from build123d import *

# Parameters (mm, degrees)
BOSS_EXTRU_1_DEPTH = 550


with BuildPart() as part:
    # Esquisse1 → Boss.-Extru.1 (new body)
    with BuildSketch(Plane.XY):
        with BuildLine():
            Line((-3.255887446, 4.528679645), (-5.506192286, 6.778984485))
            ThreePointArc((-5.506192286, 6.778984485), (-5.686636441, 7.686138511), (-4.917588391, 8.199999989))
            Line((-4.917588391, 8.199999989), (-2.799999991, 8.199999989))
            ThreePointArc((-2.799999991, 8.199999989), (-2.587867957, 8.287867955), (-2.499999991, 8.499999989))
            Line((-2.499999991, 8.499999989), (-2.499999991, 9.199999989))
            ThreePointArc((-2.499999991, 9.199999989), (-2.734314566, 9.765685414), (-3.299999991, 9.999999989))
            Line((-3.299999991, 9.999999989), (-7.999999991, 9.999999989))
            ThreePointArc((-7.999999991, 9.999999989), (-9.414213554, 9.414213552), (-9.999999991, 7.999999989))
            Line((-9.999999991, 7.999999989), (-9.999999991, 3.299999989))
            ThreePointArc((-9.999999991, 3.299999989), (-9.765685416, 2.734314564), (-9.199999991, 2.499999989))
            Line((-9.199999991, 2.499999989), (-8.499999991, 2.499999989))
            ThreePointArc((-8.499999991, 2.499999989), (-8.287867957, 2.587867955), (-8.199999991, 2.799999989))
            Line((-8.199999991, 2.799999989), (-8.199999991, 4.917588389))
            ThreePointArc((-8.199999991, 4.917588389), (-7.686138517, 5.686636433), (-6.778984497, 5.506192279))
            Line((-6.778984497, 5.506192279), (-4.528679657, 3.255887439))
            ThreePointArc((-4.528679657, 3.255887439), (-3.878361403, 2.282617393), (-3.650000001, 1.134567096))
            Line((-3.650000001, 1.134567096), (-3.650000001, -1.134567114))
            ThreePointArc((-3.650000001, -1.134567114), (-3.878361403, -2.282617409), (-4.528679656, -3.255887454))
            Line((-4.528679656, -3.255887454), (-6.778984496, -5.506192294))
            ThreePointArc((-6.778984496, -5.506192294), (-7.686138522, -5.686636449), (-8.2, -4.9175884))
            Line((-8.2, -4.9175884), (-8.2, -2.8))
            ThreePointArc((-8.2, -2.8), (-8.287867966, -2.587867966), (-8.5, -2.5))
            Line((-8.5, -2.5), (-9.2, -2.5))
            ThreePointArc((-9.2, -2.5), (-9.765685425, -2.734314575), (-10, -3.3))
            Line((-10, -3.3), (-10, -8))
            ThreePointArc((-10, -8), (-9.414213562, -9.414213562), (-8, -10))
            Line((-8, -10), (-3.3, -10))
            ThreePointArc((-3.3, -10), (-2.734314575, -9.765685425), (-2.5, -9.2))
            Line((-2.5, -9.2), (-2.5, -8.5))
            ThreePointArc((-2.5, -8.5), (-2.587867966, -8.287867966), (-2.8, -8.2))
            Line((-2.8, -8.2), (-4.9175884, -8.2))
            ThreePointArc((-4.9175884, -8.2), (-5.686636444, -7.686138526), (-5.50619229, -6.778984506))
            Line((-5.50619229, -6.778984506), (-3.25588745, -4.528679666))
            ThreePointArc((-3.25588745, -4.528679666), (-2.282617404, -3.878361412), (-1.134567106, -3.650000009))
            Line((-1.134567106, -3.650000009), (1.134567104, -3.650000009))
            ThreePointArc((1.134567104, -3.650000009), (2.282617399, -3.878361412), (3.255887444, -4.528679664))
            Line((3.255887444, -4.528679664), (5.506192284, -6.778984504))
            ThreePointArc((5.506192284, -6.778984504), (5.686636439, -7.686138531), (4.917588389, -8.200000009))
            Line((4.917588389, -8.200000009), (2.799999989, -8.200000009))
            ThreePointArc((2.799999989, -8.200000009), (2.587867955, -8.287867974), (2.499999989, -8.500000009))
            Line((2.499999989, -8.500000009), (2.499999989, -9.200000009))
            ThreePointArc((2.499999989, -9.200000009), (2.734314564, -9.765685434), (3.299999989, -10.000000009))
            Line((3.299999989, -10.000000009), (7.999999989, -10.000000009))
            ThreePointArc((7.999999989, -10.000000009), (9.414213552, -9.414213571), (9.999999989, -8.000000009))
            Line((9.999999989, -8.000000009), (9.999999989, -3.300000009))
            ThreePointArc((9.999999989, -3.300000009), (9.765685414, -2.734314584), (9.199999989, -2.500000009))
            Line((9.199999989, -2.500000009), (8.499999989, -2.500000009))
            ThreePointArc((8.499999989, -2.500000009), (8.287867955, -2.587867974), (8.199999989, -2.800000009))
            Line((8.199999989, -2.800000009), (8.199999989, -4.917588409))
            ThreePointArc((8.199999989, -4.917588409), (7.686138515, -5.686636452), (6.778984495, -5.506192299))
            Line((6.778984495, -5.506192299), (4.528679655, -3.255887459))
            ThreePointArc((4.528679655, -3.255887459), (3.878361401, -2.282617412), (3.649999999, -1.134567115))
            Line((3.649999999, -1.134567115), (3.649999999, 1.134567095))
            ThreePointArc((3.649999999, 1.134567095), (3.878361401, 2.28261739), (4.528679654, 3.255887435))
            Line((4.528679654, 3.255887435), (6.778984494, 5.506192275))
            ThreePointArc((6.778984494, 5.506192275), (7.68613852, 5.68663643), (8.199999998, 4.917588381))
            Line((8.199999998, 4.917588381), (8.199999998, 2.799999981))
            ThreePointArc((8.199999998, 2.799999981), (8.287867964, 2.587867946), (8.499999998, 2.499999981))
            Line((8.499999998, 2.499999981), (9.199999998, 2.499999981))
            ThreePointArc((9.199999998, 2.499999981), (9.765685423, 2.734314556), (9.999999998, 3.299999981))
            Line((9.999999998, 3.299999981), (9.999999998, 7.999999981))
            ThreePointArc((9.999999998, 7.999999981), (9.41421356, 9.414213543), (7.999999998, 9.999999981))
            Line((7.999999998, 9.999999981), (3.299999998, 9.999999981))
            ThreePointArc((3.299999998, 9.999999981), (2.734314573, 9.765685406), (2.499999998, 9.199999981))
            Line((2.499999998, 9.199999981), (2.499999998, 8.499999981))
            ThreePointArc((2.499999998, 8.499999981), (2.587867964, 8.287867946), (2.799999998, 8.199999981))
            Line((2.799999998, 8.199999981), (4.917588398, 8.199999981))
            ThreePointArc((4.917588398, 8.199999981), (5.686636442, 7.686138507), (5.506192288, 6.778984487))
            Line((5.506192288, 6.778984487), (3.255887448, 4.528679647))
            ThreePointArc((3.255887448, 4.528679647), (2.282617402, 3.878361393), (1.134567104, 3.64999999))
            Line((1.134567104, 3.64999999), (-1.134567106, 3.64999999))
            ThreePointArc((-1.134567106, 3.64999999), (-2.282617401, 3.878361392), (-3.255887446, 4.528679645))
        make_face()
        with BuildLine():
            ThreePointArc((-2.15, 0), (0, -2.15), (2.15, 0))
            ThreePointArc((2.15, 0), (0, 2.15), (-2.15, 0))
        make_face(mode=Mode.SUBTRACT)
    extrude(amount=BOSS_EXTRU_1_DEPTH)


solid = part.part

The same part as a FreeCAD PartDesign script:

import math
import FreeCAD as App
import Part
import Sketcher

V = App.Vector

doc = App.newDocument("Part")
body = doc.addObject("PartDesign::Body", "Body")

# Sketch on XY plane
sketch1 = body.newObject("Sketcher::SketchObject", "Sketch")
sketch1.AttachmentSupport = (doc.getObject("XY_Plane"), [""])
sketch1.MapMode = "FlatFace"
sketch1.addGeometry(Part.LineSegment(V(-3.26, 4.53, 0), V(-5.51, 6.78, 0)), False)
sketch1.addGeometry(Part.ArcOfCircle(Part.Circle(V(-4.92, 7.37, 0), V(0, 0, 1), 0.83), math.radians(90), math.radians(225)), False)
sketch1.addGeometry(Part.LineSegment(V(-4.92, 8.2, 0), V(-2.8, 8.2, 0)), False)
sketch1.addGeometry(Part.ArcOfCircle(Part.Circle(V(-2.8, 8.5, 0), V(0, 0, 1), 0.3), math.radians(-90), math.radians(0)), False)
sketch1.addGeometry(Part.LineSegment(V(-2.5, 8.5, 0), V(-2.5, 9.2, 0)), False)
sketch1.addGeometry(Part.ArcOfCircle(Part.Circle(V(-3.3, 9.2, 0), V(0, 0, 1), 0.8), math.radians(0), math.radians(90)), False)
sketch1.addGeometry(Part.LineSegment(V(-3.3, 10, 0), V(-8, 10, 0)), False)
sketch1.addGeometry(Part.ArcOfCircle(Part.Circle(V(-8, 8, 0), V(0, 0, 1), 2), math.radians(90), math.radians(180)), False)
sketch1.addGeometry(Part.LineSegment(V(-10, 8, 0), V(-10, 3.3, 0)), False)
sketch1.addGeometry(Part.ArcOfCircle(Part.Circle(V(-9.2, 3.3, 0), V(0, 0, 1), 0.8), math.radians(180), math.radians(270)), False)
sketch1.addGeometry(Part.LineSegment(V(-9.2, 2.5, 0), V(-8.5, 2.5, 0)), False)
sketch1.addGeometry(Part.ArcOfCircle(Part.Circle(V(-8.5, 2.8, 0), V(0, 0, 1), 0.3), math.radians(-90), math.radians(0)), False)
sketch1.addGeometry(Part.LineSegment(V(-8.2, 2.8, 0), V(-8.2, 4.92, 0)), False)
sketch1.addGeometry(Part.ArcOfCircle(Part.Circle(V(-7.37, 4.92, 0), V(0, 0, 1), 0.83), math.radians(45), math.radians(180)), False)
sketch1.addGeometry(Part.LineSegment(V(-6.78, 5.51, 0), V(-4.53, 3.26, 0)), False)
sketch1.addGeometry(Part.ArcOfCircle(Part.Circle(V(-6.65, 1.13, 0), V(0, 0, 1), 3), math.radians(0), math.radians(45)), False)
sketch1.addGeometry(Part.LineSegment(V(-3.65, 1.13, 0), V(-3.65, -1.13, 0)), False)
sketch1.addGeometry(Part.ArcOfCircle(Part.Circle(V(-6.65, -1.13, 0), V(0, 0, 1), 3), math.radians(-45), math.radians(0)), False)
sketch1.addGeometry(Part.LineSegment(V(-4.53, -3.26, 0), V(-6.78, -5.51, 0)), False)
sketch1.addGeometry(Part.ArcOfCircle(Part.Circle(V(-7.37, -4.92, 0), V(0, 0, 1), 0.83), math.radians(180), math.radians(315)), False)
sketch1.addGeometry(Part.LineSegment(V(-8.2, -4.92, 0), V(-8.2, -2.8, 0)), False)
sketch1.addGeometry(Part.ArcOfCircle(Part.Circle(V(-8.5, -2.8, 0), V(0, 0, 1), 0.3), math.radians(0), math.radians(90)), False)
sketch1.addGeometry(Part.LineSegment(V(-8.5, -2.5, 0), V(-9.2, -2.5, 0)), False)
sketch1.addGeometry(Part.ArcOfCircle(Part.Circle(V(-9.2, -3.3, 0), V(0, 0, 1), 0.8), math.radians(90), math.radians(180)), False)
sketch1.addGeometry(Part.LineSegment(V(-10, -3.3, 0), V(-10, -8, 0)), False)
sketch1.addGeometry(Part.ArcOfCircle(Part.Circle(V(-8, -8, 0), V(0, 0, 1), 2), math.radians(-180), math.radians(-90)), False)
sketch1.addGeometry(Part.LineSegment(V(-8, -10, 0), V(-3.3, -10, 0)), False)
sketch1.addGeometry(Part.ArcOfCircle(Part.Circle(V(-3.3, -9.2, 0), V(0, 0, 1), 0.8), math.radians(-90), math.radians(0)), False)
sketch1.addGeometry(Part.LineSegment(V(-2.5, -9.2, 0), V(-2.5, -8.5, 0)), False)
sketch1.addGeometry(Part.ArcOfCircle(Part.Circle(V(-2.8, -8.5, 0), V(0, 0, 1), 0.3), math.radians(0), math.radians(90)), False)
sketch1.addGeometry(Part.LineSegment(V(-2.8, -8.2, 0), V(-4.92, -8.2, 0)), False)
sketch1.addGeometry(Part.ArcOfCircle(Part.Circle(V(-4.92, -7.37, 0), V(0, 0, 1), 0.83), math.radians(135), math.radians(270)), False)
sketch1.addGeometry(Part.LineSegment(V(-5.51, -6.78, 0), V(-3.26, -4.53, 0)), False)
sketch1.addGeometry(Part.ArcOfCircle(Part.Circle(V(-1.13, -6.65, 0), V(0, 0, 1), 3), math.radians(90), math.radians(135)), False)
sketch1.addGeometry(Part.LineSegment(V(-1.13, -3.65, 0), V(1.13, -3.65, 0)), False)
sketch1.addGeometry(Part.ArcOfCircle(Part.Circle(V(1.13, -6.65, 0), V(0, 0, 1), 3), math.radians(45), math.radians(90)), False)
sketch1.addGeometry(Part.LineSegment(V(3.26, -4.53, 0), V(5.51, -6.78, 0)), False)
sketch1.addGeometry(Part.ArcOfCircle(Part.Circle(V(4.92, -7.37, 0), V(0, 0, 1), 0.83), math.radians(-90), math.radians(45)), False)
sketch1.addGeometry(Part.LineSegment(V(4.92, -8.2, 0), V(2.8, -8.2, 0)), False)
sketch1.addGeometry(Part.ArcOfCircle(Part.Circle(V(2.8, -8.5, 0), V(0, 0, 1), 0.3), math.radians(90), math.radians(180)), False)
sketch1.addGeometry(Part.LineSegment(V(2.5, -8.5, 0), V(2.5, -9.2, 0)), False)
sketch1.addGeometry(Part.ArcOfCircle(Part.Circle(V(3.3, -9.2, 0), V(0, 0, 1), 0.8), math.radians(180), math.radians(270)), False)
sketch1.addGeometry(Part.LineSegment(V(3.3, -10, 0), V(8, -10, 0)), False)
sketch1.addGeometry(Part.ArcOfCircle(Part.Circle(V(8, -8, 0), V(0, 0, 1), 2), math.radians(-90), math.radians(0)), False)
sketch1.addGeometry(Part.LineSegment(V(10, -8, 0), V(10, -3.3, 0)), False)
sketch1.addGeometry(Part.ArcOfCircle(Part.Circle(V(9.2, -3.3, 0), V(0, 0, 1), 0.8), math.radians(0), math.radians(90)), False)
sketch1.addGeometry(Part.LineSegment(V(9.2, -2.5, 0), V(8.5, -2.5, 0)), False)
sketch1.addGeometry(Part.ArcOfCircle(Part.Circle(V(8.5, -2.8, 0), V(0, 0, 1), 0.3), math.radians(90), math.radians(180)), False)
sketch1.addGeometry(Part.LineSegment(V(8.2, -2.8, 0), V(8.2, -4.92, 0)), False)
sketch1.addGeometry(Part.ArcOfCircle(Part.Circle(V(7.37, -4.92, 0), V(0, 0, 1), 0.83), math.radians(-135), math.radians(0)), False)
sketch1.addGeometry(Part.LineSegment(V(6.78, -5.51, 0), V(4.53, -3.26, 0)), False)
sketch1.addGeometry(Part.ArcOfCircle(Part.Circle(V(6.65, -1.13, 0), V(0, 0, 1), 3), math.radians(180), math.radians(225)), False)
sketch1.addGeometry(Part.LineSegment(V(3.65, -1.13, 0), V(3.65, 1.13, 0)), False)
sketch1.addGeometry(Part.ArcOfCircle(Part.Circle(V(6.65, 1.13, 0), V(0, 0, 1), 3), math.radians(135), math.radians(180)), False)
sketch1.addGeometry(Part.LineSegment(V(4.53, 3.26, 0), V(6.78, 5.51, 0)), False)
sketch1.addGeometry(Part.ArcOfCircle(Part.Circle(V(7.37, 4.92, 0), V(0, 0, 1), 0.83), math.radians(0), math.radians(135)), False)
sketch1.addGeometry(Part.LineSegment(V(8.2, 4.92, 0), V(8.2, 2.8, 0)), False)
sketch1.addGeometry(Part.ArcOfCircle(Part.Circle(V(8.5, 2.8, 0), V(0, 0, 1), 0.3), math.radians(180), math.radians(270)), False)
sketch1.addGeometry(Part.LineSegment(V(8.5, 2.5, 0), V(9.2, 2.5, 0)), False)
sketch1.addGeometry(Part.ArcOfCircle(Part.Circle(V(9.2, 3.3, 0), V(0, 0, 1), 0.8), math.radians(-90), math.radians(0)), False)
sketch1.addGeometry(Part.LineSegment(V(10, 3.3, 0), V(10, 8, 0)), False)
sketch1.addGeometry(Part.ArcOfCircle(Part.Circle(V(8, 8, 0), V(0, 0, 1), 2), math.radians(0), math.radians(90)), False)
sketch1.addGeometry(Part.LineSegment(V(8, 10, 0), V(3.3, 10, 0)), False)
sketch1.addGeometry(Part.ArcOfCircle(Part.Circle(V(3.3, 9.2, 0), V(0, 0, 1), 0.8), math.radians(90), math.radians(180)), False)
sketch1.addGeometry(Part.LineSegment(V(2.5, 9.2, 0), V(2.5, 8.5, 0)), False)
sketch1.addGeometry(Part.ArcOfCircle(Part.Circle(V(2.8, 8.5, 0), V(0, 0, 1), 0.3), math.radians(180), math.radians(270)), False)
sketch1.addGeometry(Part.LineSegment(V(2.8, 8.2, 0), V(4.92, 8.2, 0)), False)
sketch1.addGeometry(Part.ArcOfCircle(Part.Circle(V(4.92, 7.37, 0), V(0, 0, 1), 0.83), math.radians(-45), math.radians(90)), False)
sketch1.addGeometry(Part.LineSegment(V(5.51, 6.78, 0), V(3.26, 4.53, 0)), False)
sketch1.addGeometry(Part.ArcOfCircle(Part.Circle(V(1.13, 6.65, 0), V(0, 0, 1), 3), math.radians(-90), math.radians(-45)), False)
sketch1.addGeometry(Part.LineSegment(V(1.13, 3.65, 0), V(-1.13, 3.65, 0)), False)
sketch1.addGeometry(Part.ArcOfCircle(Part.Circle(V(-1.13, 6.65, 0), V(0, 0, 1), 3), math.radians(-135), math.radians(-90)), False)
sketch1.addGeometry(Part.Circle(V(0, 0, 0), V(0, 0, 1), 2.15), False)
sketch1.addConstraint(Sketcher.Constraint("Tangent", 0, 2, 1, 2))
sketch1.addConstraint(Sketcher.Constraint("Tangent", 1, 1, 2, 1))
sketch1.addConstraint(Sketcher.Constraint("Tangent", 2, 2, 3, 1))
sketch1.addConstraint(Sketcher.Constraint("Tangent", 3, 2, 4, 1))
sketch1.addConstraint(Sketcher.Constraint("Tangent", 4, 2, 5, 1))
sketch1.addConstraint(Sketcher.Constraint("Tangent", 5, 2, 6, 1))
sketch1.addConstraint(Sketcher.Constraint("Tangent", 6, 2, 7, 1))
sketch1.addConstraint(Sketcher.Constraint("Tangent", 7, 2, 8, 1))
sketch1.addConstraint(Sketcher.Constraint("Tangent", 8, 2, 9, 1))
sketch1.addConstraint(Sketcher.Constraint("Tangent", 9, 2, 10, 1))
sketch1.addConstraint(Sketcher.Constraint("Tangent", 10, 2, 11, 1))
sketch1.addConstraint(Sketcher.Constraint("Tangent", 11, 2, 12, 1))
sketch1.addConstraint(Sketcher.Constraint("Tangent", 12, 2, 13, 2))
sketch1.addConstraint(Sketcher.Constraint("Tangent", 13, 1, 14, 1))
sketch1.addConstraint(Sketcher.Constraint("Tangent", 14, 2, 15, 2))
sketch1.addConstraint(Sketcher.Constraint("Tangent", 15, 1, 16, 1))
sketch1.addConstraint(Sketcher.Constraint("Tangent", 16, 2, 17, 2))
sketch1.addConstraint(Sketcher.Constraint("Tangent", 17, 1, 18, 1))
sketch1.addConstraint(Sketcher.Constraint("Tangent", 18, 2, 19, 2))
sketch1.addConstraint(Sketcher.Constraint("Tangent", 19, 1, 20, 1))
sketch1.addConstraint(Sketcher.Constraint("Tangent", 20, 2, 21, 1))
sketch1.addConstraint(Sketcher.Constraint("Tangent", 21, 2, 22, 1))
sketch1.addConstraint(Sketcher.Constraint("Tangent", 22, 2, 23, 1))
sketch1.addConstraint(Sketcher.Constraint("Tangent", 23, 2, 24, 1))
sketch1.addConstraint(Sketcher.Constraint("Tangent", 24, 2, 25, 1))
sketch1.addConstraint(Sketcher.Constraint("Tangent", 25, 2, 26, 1))
sketch1.addConstraint(Sketcher.Constraint("Tangent", 26, 2, 27, 1))
sketch1.addConstraint(Sketcher.Constraint("Tangent", 27, 2, 28, 1))
sketch1.addConstraint(Sketcher.Constraint("Tangent", 28, 2, 29, 1))
sketch1.addConstraint(Sketcher.Constraint("Tangent", 29, 2, 30, 1))
sketch1.addConstraint(Sketcher.Constraint("Tangent", 30, 2, 31, 2))
sketch1.addConstraint(Sketcher.Constraint("Tangent", 31, 1, 32, 1))
sketch1.addConstraint(Sketcher.Constraint("Tangent", 32, 2, 33, 2))
sketch1.addConstraint(Sketcher.Constraint("Tangent", 33, 1, 34, 1))
sketch1.addConstraint(Sketcher.Constraint("Tangent", 34, 2, 35, 2))
sketch1.addConstraint(Sketcher.Constraint("Tangent", 35, 1, 36, 1))
sketch1.addConstraint(Sketcher.Constraint("Tangent", 36, 2, 37, 2))
sketch1.addConstraint(Sketcher.Constraint("Tangent", 37, 1, 38, 1))
sketch1.addConstraint(Sketcher.Constraint("Tangent", 38, 2, 39, 1))
sketch1.addConstraint(Sketcher.Constraint("Tangent", 39, 2, 40, 1))
sketch1.addConstraint(Sketcher.Constraint("Tangent", 40, 2, 41, 1))
sketch1.addConstraint(Sketcher.Constraint("Tangent", 41, 2, 42, 1))
sketch1.addConstraint(Sketcher.Constraint("Tangent", 42, 2, 43, 1))
sketch1.addConstraint(Sketcher.Constraint("Tangent", 43, 2, 44, 1))
sketch1.addConstraint(Sketcher.Constraint("Tangent", 44, 2, 45, 1))
sketch1.addConstraint(Sketcher.Constraint("Tangent", 45, 2, 46, 1))
sketch1.addConstraint(Sketcher.Constraint("Tangent", 46, 2, 47, 1))
sketch1.addConstraint(Sketcher.Constraint("Tangent", 47, 2, 48, 1))
sketch1.addConstraint(Sketcher.Constraint("Tangent", 48, 2, 49, 2))
sketch1.addConstraint(Sketcher.Constraint("Tangent", 49, 1, 50, 1))
sketch1.addConstraint(Sketcher.Constraint("Tangent", 50, 2, 51, 2))
sketch1.addConstraint(Sketcher.Constraint("Tangent", 51, 1, 52, 1))
sketch1.addConstraint(Sketcher.Constraint("Tangent", 52, 2, 53, 2))
sketch1.addConstraint(Sketcher.Constraint("Tangent", 53, 1, 54, 1))
sketch1.addConstraint(Sketcher.Constraint("Tangent", 54, 2, 55, 2))
sketch1.addConstraint(Sketcher.Constraint("Tangent", 55, 1, 56, 1))
sketch1.addConstraint(Sketcher.Constraint("Tangent", 56, 2, 57, 1))
sketch1.addConstraint(Sketcher.Constraint("Tangent", 57, 2, 58, 1))
sketch1.addConstraint(Sketcher.Constraint("Tangent", 58, 2, 59, 1))
sketch1.addConstraint(Sketcher.Constraint("Tangent", 59, 2, 60, 1))
sketch1.addConstraint(Sketcher.Constraint("Tangent", 60, 2, 61, 1))
sketch1.addConstraint(Sketcher.Constraint("Tangent", 61, 2, 62, 1))
sketch1.addConstraint(Sketcher.Constraint("Tangent", 62, 2, 63, 1))
sketch1.addConstraint(Sketcher.Constraint("Tangent", 63, 2, 64, 1))
sketch1.addConstraint(Sketcher.Constraint("Tangent", 64, 2, 65, 1))
sketch1.addConstraint(Sketcher.Constraint("Tangent", 65, 2, 66, 1))
sketch1.addConstraint(Sketcher.Constraint("Tangent", 66, 2, 67, 2))
sketch1.addConstraint(Sketcher.Constraint("Tangent", 67, 1, 68, 1))
sketch1.addConstraint(Sketcher.Constraint("Tangent", 68, 2, 69, 2))
sketch1.addConstraint(Sketcher.Constraint("Tangent", 69, 1, 70, 1))
sketch1.addConstraint(Sketcher.Constraint("Tangent", 70, 2, 71, 2))
sketch1.addConstraint(Sketcher.Constraint("Tangent", 71, 1, 0, 1))
sketch1.addConstraint(Sketcher.Constraint("Horizontal", 2))
sketch1.addConstraint(Sketcher.Constraint("Vertical", 4))
sketch1.addConstraint(Sketcher.Constraint("Horizontal", 6))
sketch1.addConstraint(Sketcher.Constraint("Vertical", 8))
sketch1.addConstraint(Sketcher.Constraint("Horizontal", 10))
sketch1.addConstraint(Sketcher.Constraint("Vertical", 12))
sketch1.addConstraint(Sketcher.Constraint("Vertical", 16))
sketch1.addConstraint(Sketcher.Constraint("Vertical", 20))
sketch1.addConstraint(Sketcher.Constraint("Horizontal", 22))
sketch1.addConstraint(Sketcher.Constraint("Vertical", 24))
sketch1.addConstraint(Sketcher.Constraint("Horizontal", 26))
sketch1.addConstraint(Sketcher.Constraint("Vertical", 28))
sketch1.addConstraint(Sketcher.Constraint("Horizontal", 30))
sketch1.addConstraint(Sketcher.Constraint("Horizontal", 34))
sketch1.addConstraint(Sketcher.Constraint("Horizontal", 38))
sketch1.addConstraint(Sketcher.Constraint("Vertical", 40))
sketch1.addConstraint(Sketcher.Constraint("Horizontal", 42))
sketch1.addConstraint(Sketcher.Constraint("Vertical", 44))
sketch1.addConstraint(Sketcher.Constraint("Horizontal", 46))
sketch1.addConstraint(Sketcher.Constraint("Vertical", 48))
sketch1.addConstraint(Sketcher.Constraint("Vertical", 52))
sketch1.addConstraint(Sketcher.Constraint("Vertical", 56))
sketch1.addConstraint(Sketcher.Constraint("Horizontal", 58))
sketch1.addConstraint(Sketcher.Constraint("Vertical", 60))
sketch1.addConstraint(Sketcher.Constraint("Horizontal", 62))
sketch1.addConstraint(Sketcher.Constraint("Vertical", 64))
sketch1.addConstraint(Sketcher.Constraint("Horizontal", 66))
sketch1.addConstraint(Sketcher.Constraint("Horizontal", 70))
sketch1.addConstraint(Sketcher.Constraint("Coincident", 72, 3, -1, 1))
sketch1.addConstraint(Sketcher.Constraint("Equal", 5, 9))
sketch1.addConstraint(Sketcher.Constraint("Equal", 3, 11))
sketch1.addConstraint(Sketcher.Constraint("Equal", 1, 13))
sketch1.addConstraint(Sketcher.Constraint("Equal", 15, 17))
sketch1.addConstraint(Sketcher.Constraint("Equal", 13, 19))
sketch1.addConstraint(Sketcher.Constraint("Equal", 11, 21))
sketch1.addConstraint(Sketcher.Constraint("Equal", 9, 23))
sketch1.addConstraint(Sketcher.Constraint("Equal", 7, 25))
sketch1.addConstraint(Sketcher.Constraint("Equal", 23, 27))
sketch1.addConstraint(Sketcher.Constraint("Equal", 21, 29))
sketch1.addConstraint(Sketcher.Constraint("Equal", 19, 31))
sketch1.addConstraint(Sketcher.Constraint("Equal", 17, 33))
sketch1.addConstraint(Sketcher.Constraint("Equal", 33, 35))
sketch1.addConstraint(Sketcher.Constraint("Equal", 31, 37))
sketch1.addConstraint(Sketcher.Constraint("Equal", 29, 39))
sketch1.addConstraint(Sketcher.Constraint("Equal", 27, 41))
sketch1.addConstraint(Sketcher.Constraint("Equal", 25, 43))
sketch1.addConstraint(Sketcher.Constraint("Equal", 41, 45))
sketch1.addConstraint(Sketcher.Constraint("Equal", 39, 47))
sketch1.addConstraint(Sketcher.Constraint("Equal", 37, 49))
sketch1.addConstraint(Sketcher.Constraint("Equal", 35, 51))
sketch1.addConstraint(Sketcher.Constraint("Equal", 51, 53))
sketch1.addConstraint(Sketcher.Constraint("Equal", 49, 55))
sketch1.addConstraint(Sketcher.Constraint("Equal", 47, 57))
sketch1.addConstraint(Sketcher.Constraint("Equal", 45, 59))
sketch1.addConstraint(Sketcher.Constraint("Equal", 43, 61))
sketch1.addConstraint(Sketcher.Constraint("Equal", 59, 63))
sketch1.addConstraint(Sketcher.Constraint("Equal", 57, 65))
sketch1.addConstraint(Sketcher.Constraint("Equal", 55, 67))
sketch1.addConstraint(Sketcher.Constraint("Equal", 53, 69))
sketch1.addConstraint(Sketcher.Constraint("Equal", 69, 71))
sketch1.addConstraint(Sketcher.Constraint("Symmetric", 1, 3, 37, 3, -1, 1))
sketch1.addConstraint(Sketcher.Constraint("Symmetric", 5, 3, 41, 3, -1, 1))
sketch1.addConstraint(Sketcher.Constraint("Symmetric", 9, 3, 45, 3, -1, 1))
sketch1.addConstraint(Sketcher.Constraint("Symmetric", 13, 3, 49, 3, -1, 1))
sketch1.addConstraint(Sketcher.Constraint("Symmetric", 15, 3, 51, 3, -1, 1))
sketch1.addConstraint(Sketcher.Constraint("Symmetric", 19, 3, 55, 3, -1, 1))
sketch1.addConstraint(Sketcher.Constraint("Symmetric", 23, 3, 59, 3, -1, 1))
sketch1.addConstraint(Sketcher.Constraint("Symmetric", 27, 3, 63, 3, -1, 1))
sketch1.addConstraint(Sketcher.Constraint("Symmetric", 31, 3, 67, 3, -1, 1))
sketch1.addConstraint(Sketcher.Constraint("Symmetric", 33, 3, 69, 3, -1, 1))
sketch1.addConstraint(Sketcher.Constraint("Symmetric", 31, 3, 37, 3, -2))
sketch1.addConstraint(Sketcher.Constraint("Symmetric", 27, 3, 41, 3, -2))
sketch1.addConstraint(Sketcher.Constraint("Symmetric", 23, 3, 45, 3, -2))
sketch1.addConstraint(Sketcher.Constraint("Symmetric", 19, 3, 49, 3, -2))
sketch1.addConstraint(Sketcher.Constraint("Parallel", 0, 14))
sketch1.addConstraint(Sketcher.Constraint("Perpendicular", 14, 18))
sketch1.addConstraint(Sketcher.Constraint("Parallel", 18, 32))
sketch1.addConstraint(Sketcher.Constraint("Perpendicular", 32, 36))
sketch1.addConstraint(Sketcher.Constraint("Perpendicular", 50, 54))
sketch1.addConstraint(Sketcher.Constraint("Horizontal", 17, 3, 51, 3))
sketch1.addConstraint(Sketcher.Constraint("Equal", 58, 4))
sketch1.addConstraint(Sketcher.Constraint("Equal", 62, 8))
sketch1.addConstraint(Sketcher.Constraint("Equal", 66, 12))
sketch1.addConstraint(Sketcher.Constraint("Equal", 70, 16))
sketch1.addConstraint(Sketcher.Constraint("Equal", 0, 14))
sketch1.addConstraint(Sketcher.Constraint("Radius", 7, 2.0))
sketch1.addConstraint(Sketcher.Constraint("Radius", 15, 3.0))
sketch1.addConstraint(Sketcher.Constraint("Diameter", 72, 4.3))
sketch1.addConstraint(Sketcher.Constraint("Radius", 3, 0.3))
sketch1.addConstraint(Sketcher.Constraint("Radius", 5, 0.8))
sketch1.addConstraint(Sketcher.Constraint("DistanceX", 6, 2, 6, 1, 4.7))
sketch1.addConstraint(Sketcher.Constraint("DistanceX", 10, 1, 10, 2, 0.7))
sketch1.addConstraint(Sketcher.Constraint("DistanceX", 7, 3, -1, 1, 8.0))
sketch1.addConstraint(Sketcher.Constraint("DistanceX", 15, 3, -1, 1, 6.65))
sketch1.addConstraint(Sketcher.Constraint("Radius", 1, 0.832412))
sketch1.addConstraint(Sketcher.Constraint("DistanceX", 2, 1, 2, 2, 2.117588))
pad1 = body.newObject("PartDesign::Pad", "Pad")
pad1.Profile = sketch1
pad1.Length = 550

doc.recompute()
